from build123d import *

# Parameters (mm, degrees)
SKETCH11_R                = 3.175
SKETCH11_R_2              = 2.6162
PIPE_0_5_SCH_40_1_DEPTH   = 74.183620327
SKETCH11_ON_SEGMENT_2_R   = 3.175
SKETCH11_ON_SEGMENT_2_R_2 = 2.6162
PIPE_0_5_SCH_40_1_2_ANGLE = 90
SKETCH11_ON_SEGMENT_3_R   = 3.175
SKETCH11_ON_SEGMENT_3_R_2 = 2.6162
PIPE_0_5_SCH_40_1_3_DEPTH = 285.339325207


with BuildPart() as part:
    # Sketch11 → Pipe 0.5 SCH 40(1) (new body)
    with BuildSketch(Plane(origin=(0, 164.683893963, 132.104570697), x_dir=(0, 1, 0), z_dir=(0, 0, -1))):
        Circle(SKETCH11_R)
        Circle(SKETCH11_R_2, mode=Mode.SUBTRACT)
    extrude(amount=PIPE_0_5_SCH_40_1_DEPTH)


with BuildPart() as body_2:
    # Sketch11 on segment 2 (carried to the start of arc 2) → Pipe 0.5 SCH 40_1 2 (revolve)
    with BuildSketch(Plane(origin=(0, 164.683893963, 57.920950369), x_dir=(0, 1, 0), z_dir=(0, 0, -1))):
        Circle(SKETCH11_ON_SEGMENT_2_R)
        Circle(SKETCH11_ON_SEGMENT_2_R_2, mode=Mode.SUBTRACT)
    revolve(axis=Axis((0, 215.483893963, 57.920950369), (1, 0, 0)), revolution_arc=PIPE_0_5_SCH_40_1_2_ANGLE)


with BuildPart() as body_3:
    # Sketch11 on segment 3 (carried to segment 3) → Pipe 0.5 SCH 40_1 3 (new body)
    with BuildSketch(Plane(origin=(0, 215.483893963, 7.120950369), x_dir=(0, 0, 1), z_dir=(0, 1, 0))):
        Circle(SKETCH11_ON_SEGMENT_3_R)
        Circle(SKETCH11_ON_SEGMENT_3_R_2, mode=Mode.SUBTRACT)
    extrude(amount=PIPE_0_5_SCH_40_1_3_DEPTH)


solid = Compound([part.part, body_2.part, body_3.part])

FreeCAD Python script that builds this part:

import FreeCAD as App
import Part
import Sketcher
Q = App.Units.Quantity

doc = App.newDocument("Part")
body = doc.addObject("PartDesign::Body", "Body")

sketch1 = doc.addObject("Sketcher::SketchObject", "Sketch")
body.addObject(sketch1)
sketch1.AttachmentSupport = (doc.XY_Plane, [""])
sketch1.MapMode = "FlatFace"
sketch1.AttachmentOffset = App.Placement(App.Vector(0, 0, 132.104571), App.Rotation())
sketch1.addGeometry([
    Part.Circle(App.Vector(0, 164.7, 0), App.Vector(0, 0, 1), 3.2),
    Part.Circle(App.Vector(0, 164.7, 0), App.Vector(0, 0, 1), 2.6),
], False)
sketch1.addConstraint([
    Sketcher.Constraint("Coincident", 1, 3, 0, 3),
    Sketcher.Constraint("PointOnObject", 0, 3, -2),
    Sketcher.Constraint("Diameter", 0, Q("0.25 in")),
    Sketcher.Constraint("Diameter", 1, Q("0.206 in")),
    Sketcher.Constraint("DistanceY", -1, 1, 0, 3, 164.683894),
])
pad1 = doc.addObject("PartDesign::Pad", "Pad")
body.addObject(pad1)
pad1.Profile = sketch1
pad1.Length = 74.18362
pad1.Reversed = True
body2 = doc.addObject("PartDesign::Body", "Body001")

sketch2 = doc.addObject("Sketcher::SketchObject", "Sketch001")
body2.addObject(sketch2)
sketch2.AttachmentSupport = (doc.getObject("XY_Plane001"), [""])
sketch2.MapMode = "FlatFace"
sketch2.AttachmentOffset = App.Placement(App.Vector(0, 0, 57.92095), App.Rotation())
sketch2.addGeometry([
    Part.Circle(App.Vector(0, 164.7, 0), App.Vector(0, 0, 1), 3.2),
    Part.Circle(App.Vector(0, 164.7, 0), App.Vector(0, 0, 1), 2.6),
], False)
sketch2.addGeometry(Part.LineSegment(App.Vector(0, 215.5, 0), App.Vector(10, 215.5, 0)), True)
sketch2.addConstraint([
    Sketcher.Constraint("Horizontal", 2),
    Sketcher.Constraint("Coincident", 1, 3, 0, 3),
    Sketcher.Constraint("PointOnObject", 0, 3, -2),
    Sketcher.Constraint("PointOnObject", 2, 1, -2),
    Sketcher.Constraint("Diameter", 0, Q("0.25 in")),
    Sketcher.Constraint("Diameter", 1, Q("0.206 in")),
    Sketcher.Constraint("DistanceY", 0, 3, 2, 1, Q("2 in")),
    Sketcher.Constraint("DistanceX", 2, 1, 2, 2, 10.0),
    Sketcher.Constraint("DistanceY", -1, 1, 0, 3, 164.683894),
])
revolution = doc.addObject("PartDesign::Revolution", "Revolution")
body2.addObject(revolution)
revolution.Profile = sketch2
revolution.ReferenceAxis = (sketch2, ["Axis0"])
revolution.Angle = 90
body3 = doc.addObject("PartDesign::Body", "Body002")

sketch3 = doc.addObject("Sketcher::SketchObject", "Sketch002")
body3.addObject(sketch3)
sketch3.AttachmentSupport = (doc.getObject("XZ_Plane002"), [""])
sketch3.MapMode = "FlatFace"
sketch3.AttachmentOffset = App.Placement(App.Vector(0, 0, -215.483894), App.Rotation())
sketch3.addGeometry([
    Part.Circle(App.Vector(0, 7.1, 0), App.Vector(0, 0, 1), 3.2),
    Part.Circle(App.Vector(0, 7.1, 0), App.Vector(0, 0, 1), 2.6),
], False)
sketch3.addConstraint([
    Sketcher.Constraint("Coincident", 1, 3, 0, 3),
    Sketcher.Constraint("PointOnObject", 0, 3, -2),
    Sketcher.Constraint("Diameter", 0, Q("0.25 in")),
    Sketcher.Constraint("Diameter", 1, Q("0.206 in")),
    Sketcher.Constraint("DistanceY", -1, 1, 0, 3, 7.12095),
])
pad2 = doc.addObject("PartDesign::Pad", "Pad001")
body3.addObject(pad2)
pad2.Profile = sketch3
pad2.Length = 285.339325
pad2.Reversed = True

doc.recompute()
